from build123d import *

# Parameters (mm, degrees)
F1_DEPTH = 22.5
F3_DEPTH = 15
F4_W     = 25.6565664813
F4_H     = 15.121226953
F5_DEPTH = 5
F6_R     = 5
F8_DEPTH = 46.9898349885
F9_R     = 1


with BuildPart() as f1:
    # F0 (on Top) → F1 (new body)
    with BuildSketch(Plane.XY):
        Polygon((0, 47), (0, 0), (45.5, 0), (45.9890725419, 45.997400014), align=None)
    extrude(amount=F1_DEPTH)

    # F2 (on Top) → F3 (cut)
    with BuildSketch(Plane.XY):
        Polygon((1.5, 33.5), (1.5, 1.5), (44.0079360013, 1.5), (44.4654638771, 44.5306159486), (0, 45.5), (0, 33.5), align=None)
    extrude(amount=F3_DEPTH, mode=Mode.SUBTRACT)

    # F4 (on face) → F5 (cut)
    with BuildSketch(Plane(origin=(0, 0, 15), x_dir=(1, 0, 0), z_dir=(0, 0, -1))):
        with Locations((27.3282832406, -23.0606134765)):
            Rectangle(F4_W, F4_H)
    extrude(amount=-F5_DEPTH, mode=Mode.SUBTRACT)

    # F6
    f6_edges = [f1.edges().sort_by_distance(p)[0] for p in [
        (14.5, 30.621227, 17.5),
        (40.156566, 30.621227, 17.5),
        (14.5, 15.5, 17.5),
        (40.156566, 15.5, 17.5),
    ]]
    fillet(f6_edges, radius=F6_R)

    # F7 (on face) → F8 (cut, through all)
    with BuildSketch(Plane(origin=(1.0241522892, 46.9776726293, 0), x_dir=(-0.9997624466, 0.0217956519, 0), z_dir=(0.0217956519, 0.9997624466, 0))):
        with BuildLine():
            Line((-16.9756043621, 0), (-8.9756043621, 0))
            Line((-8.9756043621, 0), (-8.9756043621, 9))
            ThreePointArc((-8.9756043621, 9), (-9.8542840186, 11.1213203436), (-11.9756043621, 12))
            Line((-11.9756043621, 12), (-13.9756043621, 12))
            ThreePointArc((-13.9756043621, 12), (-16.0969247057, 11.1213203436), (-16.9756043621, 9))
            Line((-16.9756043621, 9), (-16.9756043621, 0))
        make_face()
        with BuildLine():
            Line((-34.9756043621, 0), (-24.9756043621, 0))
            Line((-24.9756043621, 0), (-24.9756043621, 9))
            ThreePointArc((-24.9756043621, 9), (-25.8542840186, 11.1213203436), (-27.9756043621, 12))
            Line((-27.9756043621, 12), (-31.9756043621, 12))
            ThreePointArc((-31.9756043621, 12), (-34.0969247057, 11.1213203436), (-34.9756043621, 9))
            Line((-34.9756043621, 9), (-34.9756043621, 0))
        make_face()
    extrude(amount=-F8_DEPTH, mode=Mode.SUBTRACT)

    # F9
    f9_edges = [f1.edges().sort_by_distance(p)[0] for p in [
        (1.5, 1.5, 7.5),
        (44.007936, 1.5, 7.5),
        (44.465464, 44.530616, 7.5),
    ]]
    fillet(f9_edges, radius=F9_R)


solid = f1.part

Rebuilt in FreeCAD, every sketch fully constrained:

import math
import FreeCAD as App
import Part
import Sketcher
from FreeCAD import Vector
Q = App.Units.Quantity


def edges_at(feature, points):
    """Names of the edges that pass closest to the given points."""
    edges = feature.Shape.Edges
    near = lambda p: min(range(len(edges)), key=lambda i: edges[i].distToShape(Part.Vertex(*p))[0])
    return sorted({f"Edge{near(p) + 1}" for p in points})


def add_polygon(sketch, points):
    """Adds a closed chain of lines whose ends are joined by coincident constraints."""
    first, n = sketch.GeometryCount, len(points)
    for a, b in zip(points, points[1:] + points[:1]):
        sketch.addGeometry(Part.LineSegment(App.Vector(*a, 0), App.Vector(*b, 0)), False)
    for i in range(n):
        sketch.addConstraint(Sketcher.Constraint("Coincident", first + i, 2, first + (i + 1) % n, 1))

doc = App.newDocument("Part")
body = doc.addObject("PartDesign::Body", "Body")

# Sketch on XY plane
sketch1 = doc.addObject("Sketcher::SketchObject", "Sketch")
body.addObject(sketch1)
sketch1.AttachmentSupport = (doc.XY_Plane, [""])
sketch1.MapMode = "FlatFace"
add_polygon(sketch1, [(0, 47), (0, 0), (46, 0), (46, 46)])  # lines 0-3
sketch1.addConstraint(Sketcher.Constraint("Vertical", 0))
sketch1.addConstraint(Sketcher.Constraint("Horizontal", 1))
sketch1.addConstraint(Sketcher.Constraint("Coincident", 0, 2, -1, 1))
sketch1.addConstraint(Sketcher.Constraint("Equal", 2, 3))
sketch1.addConstraint(Sketcher.Constraint("DistanceY", 0, 2, 0, 1, Q("47 mm")))
sketch1.addConstraint(Sketcher.Constraint("Distance", 2, Q("46 mm")))
sketch1.addConstraint(Sketcher.Constraint("DistanceX", 1, 1, 1, 2, Q("45.5 mm")))
pad1 = doc.addObject("PartDesign::Pad", "Pad")
body.addObject(pad1)
pad1.Profile = sketch1
pad1.Length = 22.5

# Sketch on XY plane
sketch2 = doc.addObject("Sketcher::SketchObject", "Sketch001")
body.addObject(sketch2)
sketch2.AttachmentSupport = (doc.XY_Plane, [""])
sketch2.MapMode = "FlatFace"
add_polygon(sketch2, [(1.5, 33.5), (1.5, 1.5), (44, 1.5), (44.5, 44.5), (0, 45.5), (0, 33.5)])  # lines 0-5
sketch2.addConstraint(Sketcher.Constraint("Vertical", 0))
sketch2.addConstraint(Sketcher.Constraint("Horizontal", 1))
sketch2.addConstraint(Sketcher.Constraint("Vertical", 4))
sketch2.addConstraint(Sketcher.Constraint("Horizontal", 5))
sketch2.addConstraint(Sketcher.Constraint("PointOnObject", 3, 2, -2))
sketch2.addConstraint(Sketcher.Constraint("DistanceY", 0, 2, 0, 1, Q("32 mm")))
sketch2.addConstraint(Sketcher.Constraint("DistanceY", 4, 2, 4, 1, Q("12 mm")))
sketch2.addConstraint(Sketcher.Constraint("DistanceX", 5, 1, 5, 2, Q("1.5 mm")))
sketch2.addConstraint(Sketcher.Constraint("DistanceY", -1, 1, 0, 2, Q("1.5 mm")))
sketch2.addConstraint(Sketcher.Constraint("Distance", 2, Q("43.033048 mm")))
sketch2.addConstraint(Sketcher.Constraint("Distance", 3, Q("44.476029 mm")))
sketch2.addConstraint(Sketcher.Constraint("DistanceX", 1, 1, 1, 2, Q("42.507936 mm")))
pocket1 = doc.addObject("PartDesign::Pocket", "Pocket")
body.addObject(pocket1)
pocket1.Profile = sketch2
pocket1.Length = 15
pocket1.Reversed = True

# Sketch on XY plane
sketch3 = doc.addObject("Sketcher::SketchObject", "Sketch002")
body.addObject(sketch3)
sketch3.AttachmentSupport = (doc.XY_Plane, [""])
sketch3.MapMode = "FlatFace"
sketch3.AttachmentOffset = App.Placement(Vector(0, 0, 15), App.Rotation())
add_polygon(sketch3, [(14, 16), (14, 31), (40, 31), (40, 16)])  # lines 0-3
sketch3.addConstraint(Sketcher.Constraint("Vertical", 0))
sketch3.addConstraint(Sketcher.Constraint("Horizontal", 1))
sketch3.addConstraint(Sketcher.Constraint("Vertical", 2))
sketch3.addConstraint(Sketcher.Constraint("Horizontal", 3))
sketch3.addConstraint(Sketcher.Constraint("DistanceX", -1, 1, 0, 2, Q("14.5 mm")))
sketch3.addConstraint(Sketcher.Constraint("DistanceY", -1, 1, 2, 2, Q("15.5 mm")))
sketch3.addConstraint(Sketcher.Constraint("DistanceX", 1, 1, 1, 2, Q("25.656566 mm")))
sketch3.addConstraint(Sketcher.Constraint("DistanceY", 0, 1, 0, 2, Q("15.121227 mm")))
pocket2 = doc.addObject("PartDesign::Pocket", "Pocket001")
body.addObject(pocket2)
pocket2.Profile = sketch3
pocket2.Length = 5
pocket2.Reversed = True
doc.recompute()

fillet = doc.addObject("PartDesign::Fillet", "Fillet")
body.addObject(fillet)
fillet.Base = (pocket2, edges_at(pocket2, [
    (14.5, 30.621, 17.5),
    (40.157, 30.621, 17.5),
    (14.5, 15.5, 17.5),
    (40.157, 15.5, 17.5),
]))
fillet.Radius = 5

# Sketch on an angled plane
sketch4 = doc.addObject("Sketcher::SketchObject", "Sketch003")
body.addObject(sketch4)
sketch4.Placement = App.Placement(Vector(1.024152, 46.977673, 0), App.Rotation(Vector(-0.999762447, 0.021795652, 0), Vector(0, 0, 1.000000001), Vector(0.021795652, 0.999762447, 0), "ZXY"))
sketch4.addGeometry(Part.LineSegment(Vector(-17, 0, 0), Vector(-9, 0, 0)), False)
sketch4.addGeometry(Part.LineSegment(Vector(-9, 0, 0), Vector(-9, 9, 0)), False)
sketch4.addGeometry(Part.ArcOfCircle(Part.Circle(Vector(-12, 9, 0), Vector(0, 0, 1), 3), math.radians(0), math.radians(90)), False)
sketch4.addGeometry(Part.LineSegment(Vector(-12, 12, 0), Vector(-14, 12, 0)), False)
sketch4.addGeometry(Part.ArcOfCircle(Part.Circle(Vector(-14, 9, 0), Vector(0, 0, 1), 3), math.radians(90), math.radians(180)), False)
sketch4.addGeometry(Part.LineSegment(Vector(-17, 9, 0), Vector(-17, 0, 0)), False)
sketch4.addGeometry(Part.LineSegment(Vector(-35, 0, 0), Vector(-25, 0, 0)), False)
sketch4.addGeometry(Part.LineSegment(Vector(-25, 0, 0), Vector(-25, 9, 0)), False)
sketch4.addGeometry(Part.ArcOfCircle(Part.Circle(Vector(-28, 9, 0), Vector(0, 0, 1), 3), math.radians(0), math.radians(90)), False)
sketch4.addGeometry(Part.LineSegment(Vector(-28, 12, 0), Vector(-32, 12, 0)), False)
sketch4.addGeometry(Part.ArcOfCircle(Part.Circle(Vector(-32, 9, 0), Vector(0, 0, 1), 3), math.radians(90), math.radians(180)), False)
sketch4.addGeometry(Part.LineSegment(Vector(-35, 9, 0), Vector(-35, 0, 0)), False)
sketch4.addConstraint(Sketcher.Constraint("Coincident", 0, 2, 1, 1))
sketch4.addConstraint(Sketcher.Constraint("Tangent", 1, 2, 2, 1))
sketch4.addConstraint(Sketcher.Constraint("Tangent", 2, 2, 3, 1))
sketch4.addConstraint(Sketcher.Constraint("Tangent", 3, 2, 4, 1))
sketch4.addConstraint(Sketcher.Constraint("Tangent", 4, 2, 5, 1))
sketch4.addConstraint(Sketcher.Constraint("Coincident", 5, 2, 0, 1))
sketch4.addConstraint(Sketcher.Constraint("Coincident", 6, 2, 7, 1))
sketch4.addConstraint(Sketcher.Constraint("Tangent", 7, 2, 8, 1))
sketch4.addConstraint(Sketcher.Constraint("Tangent", 8, 2, 9, 1))
sketch4.addConstraint(Sketcher.Constraint("Tangent", 9, 2, 10, 1))
sketch4.addConstraint(Sketcher.Constraint("Tangent", 10, 2, 11, 1))
sketch4.addConstraint(Sketcher.Constraint("Coincident", 11, 2, 6, 1))
sketch4.addConstraint(Sketcher.Constraint("Horizontal", 0))
sketch4.addConstraint(Sketcher.Constraint("Vertical", 1))
sketch4.addConstraint(Sketcher.Constraint("Horizontal", 3))
sketch4.addConstraint(Sketcher.Constraint("Vertical", 5))
sketch4.addConstraint(Sketcher.Constraint("Horizontal", 6))
sketch4.addConstraint(Sketcher.Constraint("Vertical", 7))
sketch4.addConstraint(Sketcher.Constraint("Horizontal", 9))
sketch4.addConstraint(Sketcher.Constraint("Vertical", 11))
sketch4.addConstraint(Sketcher.Constraint("Equal", 2, 4))
sketch4.addConstraint(Sketcher.Constraint("Equal", 4, 8))
sketch4.addConstraint(Sketcher.Constraint("Equal", 8, 10))
sketch4.addConstraint(Sketcher.Constraint("PointOnObject", 0, 2, -1))
sketch4.addConstraint(Sketcher.Constraint("PointOnObject", 6, 2, -1))
sketch4.addConstraint(Sketcher.Constraint("Horizontal", 4, 3, 8, 3))
sketch4.addConstraint(Sketcher.Constraint("Radius", 2, Q("3 mm")))
sketch4.addConstraint(Sketcher.Constraint("DistanceX", 0, 1, 0, 2, Q("8 mm")))
sketch4.addConstraint(Sketcher.Constraint("DistanceX", 6, 1, 6, 2, Q("10 mm")))
sketch4.addConstraint(Sketcher.Constraint("DistanceY", 1, 1, 1, 2, Q("9 mm")))
sketch4.addConstraint(Sketcher.Constraint("DistanceX", 8, 3, 4, 3, Q("14 mm")))
sketch4.addConstraint(Sketcher.Constraint("DistanceX", 2, 3, -1, 1, Q("11.975604 mm")))
pocket3 = doc.addObject("PartDesign::Pocket", "Pocket002")
body.addObject(pocket3)
pocket3.Profile = sketch4
pocket3.Type = "ThroughAll"
doc.recompute()

fillet2 = doc.addObject("PartDesign::Fillet", "Fillet001")
body.addObject(fillet2)
fillet2.Base = (pocket3, edges_at(pocket3, [(1.5, 1.5, 7.5), (44.008, 1.5, 7.5), (44.465, 44.531, 7.5)]))
fillet2.Radius = 1

doc.recompute()
